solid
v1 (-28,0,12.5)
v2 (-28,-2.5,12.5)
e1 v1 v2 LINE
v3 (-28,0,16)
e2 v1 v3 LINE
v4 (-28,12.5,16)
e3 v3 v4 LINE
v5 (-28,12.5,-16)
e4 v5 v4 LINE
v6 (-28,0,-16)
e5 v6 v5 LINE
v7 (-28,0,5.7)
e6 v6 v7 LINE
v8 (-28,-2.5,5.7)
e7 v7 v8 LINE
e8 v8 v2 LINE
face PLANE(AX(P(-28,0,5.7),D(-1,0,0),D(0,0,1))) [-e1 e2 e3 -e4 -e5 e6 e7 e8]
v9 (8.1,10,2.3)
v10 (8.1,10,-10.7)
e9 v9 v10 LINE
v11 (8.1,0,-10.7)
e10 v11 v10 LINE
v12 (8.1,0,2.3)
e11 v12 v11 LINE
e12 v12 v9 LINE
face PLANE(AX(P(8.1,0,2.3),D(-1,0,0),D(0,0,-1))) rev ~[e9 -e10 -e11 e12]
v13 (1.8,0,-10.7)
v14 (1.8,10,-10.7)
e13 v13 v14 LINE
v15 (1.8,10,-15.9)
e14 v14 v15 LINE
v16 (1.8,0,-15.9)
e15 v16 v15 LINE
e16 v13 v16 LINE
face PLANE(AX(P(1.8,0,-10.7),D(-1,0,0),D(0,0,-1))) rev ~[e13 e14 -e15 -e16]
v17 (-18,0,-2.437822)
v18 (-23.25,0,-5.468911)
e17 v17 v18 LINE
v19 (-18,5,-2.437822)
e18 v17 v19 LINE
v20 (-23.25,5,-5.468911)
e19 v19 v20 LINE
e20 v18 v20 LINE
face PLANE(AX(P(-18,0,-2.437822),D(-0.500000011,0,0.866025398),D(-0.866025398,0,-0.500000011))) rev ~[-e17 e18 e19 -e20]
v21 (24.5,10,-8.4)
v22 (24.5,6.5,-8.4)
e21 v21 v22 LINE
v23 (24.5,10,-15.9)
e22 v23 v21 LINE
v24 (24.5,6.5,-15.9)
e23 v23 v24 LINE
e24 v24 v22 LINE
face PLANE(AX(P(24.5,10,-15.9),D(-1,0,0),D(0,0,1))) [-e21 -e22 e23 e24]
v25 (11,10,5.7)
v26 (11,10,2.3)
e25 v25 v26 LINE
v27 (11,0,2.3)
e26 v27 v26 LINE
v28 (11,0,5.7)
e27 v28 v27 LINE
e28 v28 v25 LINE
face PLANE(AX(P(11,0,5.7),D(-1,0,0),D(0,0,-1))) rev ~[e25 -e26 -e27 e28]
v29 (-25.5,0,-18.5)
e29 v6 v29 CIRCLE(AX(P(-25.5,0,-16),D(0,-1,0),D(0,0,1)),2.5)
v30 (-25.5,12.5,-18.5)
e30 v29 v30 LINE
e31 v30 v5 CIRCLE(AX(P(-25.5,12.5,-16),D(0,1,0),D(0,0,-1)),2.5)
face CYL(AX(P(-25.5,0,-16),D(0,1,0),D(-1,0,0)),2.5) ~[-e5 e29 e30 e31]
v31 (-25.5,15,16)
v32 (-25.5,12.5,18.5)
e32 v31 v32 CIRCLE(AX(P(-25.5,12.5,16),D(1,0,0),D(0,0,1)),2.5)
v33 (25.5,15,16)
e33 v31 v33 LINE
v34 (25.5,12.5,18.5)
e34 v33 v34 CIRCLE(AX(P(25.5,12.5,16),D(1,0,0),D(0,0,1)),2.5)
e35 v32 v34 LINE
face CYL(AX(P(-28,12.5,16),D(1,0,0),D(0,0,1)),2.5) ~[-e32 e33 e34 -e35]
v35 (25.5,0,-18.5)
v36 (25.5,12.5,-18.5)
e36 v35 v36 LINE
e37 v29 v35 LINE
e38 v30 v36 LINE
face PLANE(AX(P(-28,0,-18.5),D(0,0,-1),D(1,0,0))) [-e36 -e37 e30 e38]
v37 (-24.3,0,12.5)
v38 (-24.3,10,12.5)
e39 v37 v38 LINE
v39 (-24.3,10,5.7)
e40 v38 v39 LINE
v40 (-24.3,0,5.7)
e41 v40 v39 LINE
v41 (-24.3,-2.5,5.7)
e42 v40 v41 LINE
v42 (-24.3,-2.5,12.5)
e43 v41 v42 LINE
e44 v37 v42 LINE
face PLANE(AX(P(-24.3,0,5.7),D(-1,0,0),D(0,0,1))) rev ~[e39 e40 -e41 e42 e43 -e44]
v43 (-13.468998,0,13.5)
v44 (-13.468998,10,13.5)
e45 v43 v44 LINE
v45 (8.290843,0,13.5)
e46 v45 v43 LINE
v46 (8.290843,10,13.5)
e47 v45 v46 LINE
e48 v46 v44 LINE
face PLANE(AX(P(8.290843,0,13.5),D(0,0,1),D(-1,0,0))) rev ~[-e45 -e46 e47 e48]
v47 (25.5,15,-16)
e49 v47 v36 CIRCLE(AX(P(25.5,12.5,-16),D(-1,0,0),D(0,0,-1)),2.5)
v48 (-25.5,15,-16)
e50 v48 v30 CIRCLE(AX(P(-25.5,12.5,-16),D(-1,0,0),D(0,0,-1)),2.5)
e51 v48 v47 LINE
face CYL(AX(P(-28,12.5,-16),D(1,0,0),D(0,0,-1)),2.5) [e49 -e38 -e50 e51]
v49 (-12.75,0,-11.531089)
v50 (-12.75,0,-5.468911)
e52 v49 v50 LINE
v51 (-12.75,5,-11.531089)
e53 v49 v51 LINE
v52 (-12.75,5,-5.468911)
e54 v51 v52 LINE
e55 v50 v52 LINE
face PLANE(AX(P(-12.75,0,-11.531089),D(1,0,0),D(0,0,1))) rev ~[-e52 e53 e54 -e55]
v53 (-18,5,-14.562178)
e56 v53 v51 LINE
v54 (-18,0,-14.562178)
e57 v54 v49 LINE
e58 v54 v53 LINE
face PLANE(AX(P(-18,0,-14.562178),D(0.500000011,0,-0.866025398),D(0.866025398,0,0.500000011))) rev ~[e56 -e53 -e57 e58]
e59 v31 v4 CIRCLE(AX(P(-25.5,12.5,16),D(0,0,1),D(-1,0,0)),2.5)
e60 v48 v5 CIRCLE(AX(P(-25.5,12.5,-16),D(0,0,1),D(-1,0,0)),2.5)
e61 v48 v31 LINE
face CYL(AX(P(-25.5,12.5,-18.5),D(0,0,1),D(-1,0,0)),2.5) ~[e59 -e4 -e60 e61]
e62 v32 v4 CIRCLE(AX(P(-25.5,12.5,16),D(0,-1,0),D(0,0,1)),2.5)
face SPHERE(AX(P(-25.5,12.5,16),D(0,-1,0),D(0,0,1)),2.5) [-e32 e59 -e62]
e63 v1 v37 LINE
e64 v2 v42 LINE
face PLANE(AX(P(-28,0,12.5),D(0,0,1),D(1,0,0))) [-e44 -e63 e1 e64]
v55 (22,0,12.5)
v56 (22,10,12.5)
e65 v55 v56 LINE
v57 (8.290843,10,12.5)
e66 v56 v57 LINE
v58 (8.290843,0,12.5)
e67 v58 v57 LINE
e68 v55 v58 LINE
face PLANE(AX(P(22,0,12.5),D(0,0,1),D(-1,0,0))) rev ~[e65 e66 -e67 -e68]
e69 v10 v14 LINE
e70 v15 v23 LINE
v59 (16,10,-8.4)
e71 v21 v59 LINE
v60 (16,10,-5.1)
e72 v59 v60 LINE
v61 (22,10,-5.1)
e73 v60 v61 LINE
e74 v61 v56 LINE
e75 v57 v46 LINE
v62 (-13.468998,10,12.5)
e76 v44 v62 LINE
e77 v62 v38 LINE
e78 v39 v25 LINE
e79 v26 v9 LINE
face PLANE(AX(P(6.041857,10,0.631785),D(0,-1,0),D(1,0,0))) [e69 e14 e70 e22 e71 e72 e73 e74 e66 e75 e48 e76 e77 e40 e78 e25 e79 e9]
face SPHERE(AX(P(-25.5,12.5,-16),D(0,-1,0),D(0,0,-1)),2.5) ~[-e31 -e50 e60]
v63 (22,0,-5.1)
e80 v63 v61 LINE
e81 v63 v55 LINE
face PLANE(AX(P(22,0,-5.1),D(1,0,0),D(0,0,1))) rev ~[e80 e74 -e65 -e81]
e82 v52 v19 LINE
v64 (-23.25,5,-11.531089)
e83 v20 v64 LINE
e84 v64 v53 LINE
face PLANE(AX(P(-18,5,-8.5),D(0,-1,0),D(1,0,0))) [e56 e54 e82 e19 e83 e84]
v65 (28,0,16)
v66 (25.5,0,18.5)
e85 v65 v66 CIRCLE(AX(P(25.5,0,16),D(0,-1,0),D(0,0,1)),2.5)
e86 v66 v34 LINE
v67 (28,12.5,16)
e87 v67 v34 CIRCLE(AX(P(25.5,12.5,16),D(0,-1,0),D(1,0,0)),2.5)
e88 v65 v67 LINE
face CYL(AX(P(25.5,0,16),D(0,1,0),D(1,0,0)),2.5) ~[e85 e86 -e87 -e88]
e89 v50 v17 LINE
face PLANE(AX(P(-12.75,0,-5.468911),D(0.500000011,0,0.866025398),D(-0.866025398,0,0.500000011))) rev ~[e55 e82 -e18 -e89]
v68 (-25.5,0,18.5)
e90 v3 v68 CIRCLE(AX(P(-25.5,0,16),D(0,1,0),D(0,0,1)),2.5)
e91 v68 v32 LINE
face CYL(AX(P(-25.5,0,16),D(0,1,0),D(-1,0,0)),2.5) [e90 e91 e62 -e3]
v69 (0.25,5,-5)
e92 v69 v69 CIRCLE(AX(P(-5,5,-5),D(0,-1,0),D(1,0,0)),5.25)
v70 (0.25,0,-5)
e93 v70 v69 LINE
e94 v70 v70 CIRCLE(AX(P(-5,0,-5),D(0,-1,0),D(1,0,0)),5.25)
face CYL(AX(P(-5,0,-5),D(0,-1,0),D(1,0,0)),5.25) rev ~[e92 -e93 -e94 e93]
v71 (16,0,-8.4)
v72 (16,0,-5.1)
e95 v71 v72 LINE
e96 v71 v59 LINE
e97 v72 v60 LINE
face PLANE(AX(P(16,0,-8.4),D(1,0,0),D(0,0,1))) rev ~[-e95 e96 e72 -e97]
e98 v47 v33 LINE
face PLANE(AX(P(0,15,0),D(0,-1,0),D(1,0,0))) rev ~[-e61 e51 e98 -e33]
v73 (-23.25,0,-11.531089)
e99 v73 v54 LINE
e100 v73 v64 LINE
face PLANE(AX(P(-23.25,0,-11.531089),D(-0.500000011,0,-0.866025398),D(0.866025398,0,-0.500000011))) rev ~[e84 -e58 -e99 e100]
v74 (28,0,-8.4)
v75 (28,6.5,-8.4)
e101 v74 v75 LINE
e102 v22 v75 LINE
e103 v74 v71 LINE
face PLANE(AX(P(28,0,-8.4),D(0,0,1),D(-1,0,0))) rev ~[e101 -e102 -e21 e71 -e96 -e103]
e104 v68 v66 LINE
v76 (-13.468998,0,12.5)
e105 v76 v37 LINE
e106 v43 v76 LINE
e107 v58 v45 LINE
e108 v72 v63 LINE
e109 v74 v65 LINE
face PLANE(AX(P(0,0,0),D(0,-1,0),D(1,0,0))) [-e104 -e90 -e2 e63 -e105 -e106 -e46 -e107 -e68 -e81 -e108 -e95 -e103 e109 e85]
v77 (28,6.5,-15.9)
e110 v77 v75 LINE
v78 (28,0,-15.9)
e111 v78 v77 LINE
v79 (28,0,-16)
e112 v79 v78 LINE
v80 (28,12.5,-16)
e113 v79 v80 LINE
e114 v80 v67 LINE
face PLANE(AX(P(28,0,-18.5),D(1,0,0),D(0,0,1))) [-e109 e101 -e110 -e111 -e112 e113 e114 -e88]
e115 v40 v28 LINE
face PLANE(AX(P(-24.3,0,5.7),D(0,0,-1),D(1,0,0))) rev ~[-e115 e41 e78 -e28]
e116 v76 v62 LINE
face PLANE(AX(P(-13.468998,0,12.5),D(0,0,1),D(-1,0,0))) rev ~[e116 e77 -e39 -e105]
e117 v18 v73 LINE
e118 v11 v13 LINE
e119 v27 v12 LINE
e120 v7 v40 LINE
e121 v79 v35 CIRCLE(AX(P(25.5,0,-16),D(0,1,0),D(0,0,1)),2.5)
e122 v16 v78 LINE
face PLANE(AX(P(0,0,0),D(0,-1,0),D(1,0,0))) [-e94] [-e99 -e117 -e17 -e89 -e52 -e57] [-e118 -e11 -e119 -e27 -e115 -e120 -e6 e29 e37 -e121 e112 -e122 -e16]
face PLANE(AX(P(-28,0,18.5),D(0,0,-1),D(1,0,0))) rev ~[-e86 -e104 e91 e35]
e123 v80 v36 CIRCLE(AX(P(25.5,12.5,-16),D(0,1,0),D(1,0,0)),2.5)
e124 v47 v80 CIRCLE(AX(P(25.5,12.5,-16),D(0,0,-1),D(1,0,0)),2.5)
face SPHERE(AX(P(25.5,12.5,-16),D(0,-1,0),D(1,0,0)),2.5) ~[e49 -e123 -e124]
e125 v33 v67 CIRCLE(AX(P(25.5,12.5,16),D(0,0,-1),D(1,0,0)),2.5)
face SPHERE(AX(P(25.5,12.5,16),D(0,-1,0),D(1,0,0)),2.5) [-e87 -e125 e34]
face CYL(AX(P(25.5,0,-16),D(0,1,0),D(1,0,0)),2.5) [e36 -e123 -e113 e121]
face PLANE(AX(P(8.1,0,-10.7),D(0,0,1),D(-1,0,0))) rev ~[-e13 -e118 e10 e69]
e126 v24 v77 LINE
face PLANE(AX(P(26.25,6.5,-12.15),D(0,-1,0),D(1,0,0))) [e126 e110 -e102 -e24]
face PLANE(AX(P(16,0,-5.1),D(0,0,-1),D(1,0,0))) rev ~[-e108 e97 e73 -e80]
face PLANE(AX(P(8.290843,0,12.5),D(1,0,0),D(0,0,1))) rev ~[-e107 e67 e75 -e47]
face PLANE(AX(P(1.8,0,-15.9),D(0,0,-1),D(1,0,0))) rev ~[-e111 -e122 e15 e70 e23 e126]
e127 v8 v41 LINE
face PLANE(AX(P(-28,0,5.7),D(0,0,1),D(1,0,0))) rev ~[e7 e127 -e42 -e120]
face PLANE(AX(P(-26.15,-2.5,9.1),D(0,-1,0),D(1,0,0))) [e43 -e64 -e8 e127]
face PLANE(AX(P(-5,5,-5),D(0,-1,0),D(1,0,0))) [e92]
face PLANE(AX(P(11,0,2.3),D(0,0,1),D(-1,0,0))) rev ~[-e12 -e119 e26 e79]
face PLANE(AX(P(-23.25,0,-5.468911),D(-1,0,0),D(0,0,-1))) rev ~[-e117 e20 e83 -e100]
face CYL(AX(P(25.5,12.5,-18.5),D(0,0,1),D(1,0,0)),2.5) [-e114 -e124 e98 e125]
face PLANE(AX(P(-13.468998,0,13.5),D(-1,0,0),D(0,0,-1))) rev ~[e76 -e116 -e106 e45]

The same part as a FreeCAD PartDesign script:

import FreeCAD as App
import Part
import Sketcher
Q = App.Units.Quantity


def edges_at(feature, points):
    """Names of the edges that pass closest to the given points."""
    edges = feature.Shape.Edges
    near = lambda p: min(range(len(edges)), key=lambda i: edges[i].distToShape(Part.Vertex(*p))[0])
    return sorted({f"Edge{near(p) + 1}" for p in points})


def add_polygon(sketch, points):
    """Adds a closed chain of lines whose ends are joined by coincident constraints."""
    first, n = sketch.GeometryCount, len(points)
    for a, b in zip(points, points[1:] + points[:1]):
        sketch.addGeometry(Part.LineSegment(App.Vector(*a, 0), App.Vector(*b, 0)), False)
    for i in range(n):
        sketch.addConstraint(Sketcher.Constraint("Coincident", first + i, 2, first + (i + 1) % n, 1))

doc = App.newDocument("Part")
body = doc.addObject("PartDesign::Body", "Body")

sketch1 = doc.addObject("Sketcher::SketchObject", "Sketch")
body.addObject(sketch1)
sketch1.AttachmentSupport = (doc.XZ_Plane, [""])
sketch1.MapMode = "FlatFace"
add_polygon(sketch1, [(-28, 18.5), (-28, -18.5), (28, -18.5), (28, 18.5)])
sketch1.addConstraint(Sketcher.Constraint("Vertical", 0))
sketch1.addConstraint(Sketcher.Constraint("Horizontal", 1))
sketch1.addConstraint(Sketcher.Constraint("Vertical", 2))
sketch1.addConstraint(Sketcher.Constraint("Horizontal", 3))
sketch1.addConstraint(Sketcher.Constraint("Symmetric", 0, 2, 2, 2, -1, 1))
sketch1.addConstraint(Sketcher.Constraint("DistanceX", 1, 1, 1, 2, Q("56 mm")))
sketch1.addConstraint(Sketcher.Constraint("DistanceY", 0, 2, 0, 1, Q("37 mm")))
pad1 = doc.addObject("PartDesign::Pad", "Pad")
body.addObject(pad1)
pad1.Profile = sketch1
pad1.Length = 15
pad1.Reversed = True

sketch2 = doc.addObject("Sketcher::SketchObject", "Sketch001")
body.addObject(sketch2)
sketch2.AttachmentSupport = (doc.XZ_Plane, [""])
sketch2.MapMode = "FlatFace"
add_polygon(sketch2, [(-13.468998, 12.5), (-24.3, 12.5), (-24.3, 5.7), (11, 5.7), (11, 2.3), (8.1, 2.3), (8.1, -10.7), (1.8, -10.7), (1.8, -15.9), (28, -15.9), (28, -8.4), (16, -8.4), (16, -5.1), (22, -5.1), (22, 12.5), (8.290843, 12.5), (8.290843, 13.5), (-13.468998, 13.5)])
sketch2.addConstraint(Sketcher.Constraint("Horizontal", 0))
sketch2.addConstraint(Sketcher.Constraint("Vertical", 1))
sketch2.addConstraint(Sketcher.Constraint("Horizontal", 2))
sketch2.addConstraint(Sketcher.Constraint("Vertical", 3))
sketch2.addConstraint(Sketcher.Constraint("Horizontal", 4))
sketch2.addConstraint(Sketcher.Constraint("Vertical", 5))
sketch2.addConstraint(Sketcher.Constraint("Horizontal", 6))
sketch2.addConstraint(Sketcher.Constraint("Vertical", 7))
sketch2.addConstraint(Sketcher.Constraint("Horizontal", 8))
sketch2.addConstraint(Sketcher.Constraint("Vertical", 9))
sketch2.addConstraint(Sketcher.Constraint("Horizontal", 10))
sketch2.addConstraint(Sketcher.Constraint("Vertical", 11))
sketch2.addConstraint(Sketcher.Constraint("Horizontal", 12))
sketch2.addConstraint(Sketcher.Constraint("Vertical", 13))
sketch2.addConstraint(Sketcher.Constraint("Horizontal", 14))
sketch2.addConstraint(Sketcher.Constraint("Vertical", 15))
sketch2.addConstraint(Sketcher.Constraint("Horizontal", 16))
sketch2.addConstraint(Sketcher.Constraint("Vertical", 17))
sketch2.addConstraint(Sketcher.Constraint("Horizontal", 0, 2, 13, 2))
sketch2.addConstraint(Sketcher.Constraint("DistanceX", 10, 2, 10, 1, Q("12 mm")))
sketch2.addConstraint(Sketcher.Constraint("DistanceX", 12, 1, 12, 2, Q("6 mm")))
sketch2.addConstraint(Sketcher.Constraint("DistanceY", 5, 2, 5, 1, Q("13 mm")))
sketch2.addConstraint(Sketcher.Constraint("DistanceY", 15, 1, 15, 2, Q("1 mm")))
sketch2.addConstraint(Sketcher.Constraint("DistanceX", 2, 1, 2, 2, Q("35.3 mm")))
sketch2.addConstraint(Sketcher.Constraint("DistanceX", 4, 2, 4, 1, Q("2.9 mm")))
sketch2.addConstraint(Sketcher.Constraint("DistanceX", 6, 2, 6, 1, Q("6.3 mm")))
sketch2.addConstraint(Sketcher.Constraint("DistanceX", 8, 1, 8, 2, Q("26.2 mm")))
sketch2.addConstraint(Sketcher.Constraint("DistanceY", 1, 2, 1, 1, Q("6.8 mm")))
sketch2.addConstraint(Sketcher.Constraint("DistanceY", 3, 2, 3, 1, Q("3.4 mm")))
sketch2.addConstraint(Sketcher.Constraint("DistanceY", 7, 2, 7, 1, Q("5.2 mm")))
sketch2.addConstraint(Sketcher.Constraint("DistanceY", 9, 1, 9, 2, Q("7.5 mm")))
sketch2.addConstraint(Sketcher.Constraint("DistanceY", 11, 1, 11, 2, Q("3.3 mm")))
sketch2.addConstraint(Sketcher.Constraint("DistanceX", -1, 1, 2, 2, Q("11 mm")))
sketch2.addConstraint(Sketcher.Constraint("DistanceY", -1, 1, 0, 2, Q("12.5 mm")))
sketch2.addConstraint(Sketcher.Constraint("DistanceX", 16, 2, 4, 2, Q("21.568998 mm")))
sketch2.addConstraint(Sketcher.Constraint("DistanceX", 16, 2, 16, 1, Q("21.759841 mm")))
pocket1 = doc.addObject("PartDesign::Pocket", "Pocket")
body.addObject(pocket1)
pocket1.Profile = sketch2
pocket1.Length = 10

sketch3 = doc.addObject("Sketcher::SketchObject", "Sketch002")
body.addObject(sketch3)
sketch3.AttachmentSupport = (doc.XZ_Plane, [""])
sketch3.MapMode = "FlatFace"
add_polygon(sketch3, [(-28, 12.5), (-28, 5.7), (-24.3, 5.7), (-24.3, 12.5)])
sketch3.addConstraint(Sketcher.Constraint("Vertical", 0))
sketch3.addConstraint(Sketcher.Constraint("Horizontal", 1))
sketch3.addConstraint(Sketcher.Constraint("Vertical", 2))
sketch3.addConstraint(Sketcher.Constraint("Horizontal", 3))
sketch3.addConstraint(Sketcher.Constraint("DistanceX", 1, 1, 1, 2, Q("3.7 mm")))
sketch3.addConstraint(Sketcher.Constraint("DistanceY", 0, 2, 0, 1, Q("6.8 mm")))
sketch3.addConstraint(Sketcher.Constraint("DistanceX", 0, 2, -1, 1, Q("28 mm")))
sketch3.addConstraint(Sketcher.Constraint("DistanceY", -1, 1, 0, 2, Q("5.7 mm")))
pad2 = doc.addObject("PartDesign::Pad", "Pad001")
body.addObject(pad2)
pad2.Profile = sketch3
pad2.Length = 2.5

sketch4 = doc.addObject("Sketcher::SketchObject", "Sketch003")
body.addObject(sketch4)
sketch4.AttachmentSupport = (doc.XZ_Plane, [""])
sketch4.MapMode = "FlatFace"
add_polygon(sketch4, [(-23.25, -5.468911), (-23.25, -11.531089), (-18, -14.562178), (-12.75, -11.531089), (-12.75, -5.468911), (-18, -2.437822)])
sketch4.addConstraint(Sketcher.Constraint("Vertical", 0))
sketch4.addConstraint(Sketcher.Constraint("Vertical", 3))
sketch4.addConstraint(Sketcher.Constraint("Parallel", 1, 4))
sketch4.addConstraint(Sketcher.Constraint("Parallel", 2, 5))
sketch4.addConstraint(Sketcher.Constraint("Horizontal", 0, 2, 2, 2))
sketch4.addConstraint(Sketcher.Constraint("Horizontal", 3, 2, 5, 2))
sketch4.addConstraint(Sketcher.Constraint("Vertical", 1, 2, 4, 2))
sketch4.addConstraint(Sketcher.Constraint("Angle", 1, Q("-30.000001 deg")))
sketch4.addConstraint(Sketcher.Constraint("DistanceX", 1, 2, -1, 1, Q("18 mm")))
sketch4.addConstraint(Sketcher.Constraint("DistanceX", 0, 2, 2, 2, Q("10.5 mm")))
sketch4.addConstraint(Sketcher.Constraint("DistanceY", 0, 2, 0, 1, Q("6.062178 mm")))
sketch4.addConstraint(Sketcher.Constraint("DistanceY", 0, 2, -1, 1, Q("11.531089 mm")))
pocket2 = doc.addObject("PartDesign::Pocket", "Pocket001")
body.addObject(pocket2)
pocket2.Profile = sketch4
pocket2.Length = 5

sketch5 = doc.addObject("Sketcher::SketchObject", "Sketch004")
body.addObject(sketch5)
sketch5.AttachmentSupport = (doc.XZ_Plane, [""])
sketch5.MapMode = "FlatFace"
sketch5.AttachmentOffset = App.Placement(App.Vector(0, 0, -10), App.Rotation())
add_polygon(sketch5, [(24.5, -8.4), (24.5, -15.9), (28, -15.9), (28, -8.4)])
sketch5.addConstraint(Sketcher.Constraint("Vertical", 0))
sketch5.addConstraint(Sketcher.Constraint("Horizontal", 1))
sketch5.addConstraint(Sketcher.Constraint("Vertical", 2))
sketch5.addConstraint(Sketcher.Constraint("Horizontal", 3))
sketch5.addConstraint(Sketcher.Constraint("DistanceX", 1, 1, 1, 2, Q("3.5 mm")))
sketch5.addConstraint(Sketcher.Constraint("DistanceY", 0, 2, 0, 1, Q("7.5 mm")))
sketch5.addConstraint(Sketcher.Constraint("DistanceX", -1, 1, 1, 2, Q("28 mm")))
sketch5.addConstraint(Sketcher.Constraint("DistanceY", 0, 2, -1, 1, Q("15.9 mm")))
pad3 = doc.addObject("PartDesign::Pad", "Pad002")
body.addObject(pad3)
pad3.Profile = sketch5
pad3.Length = 3.5
doc.recompute()

fillet = doc.addObject("PartDesign::Fillet", "Fillet")
body.addObject(fillet)
fillet.Base = (pad3, edges_at(pad3, [
    (28, 7.5, -18.5),
    (28, 7.5, 18.5),
    (-28, 7.5, 18.5),
    (-28, 7.5, -18.5),
    (28, 15, 0),
    (0, 15, 18.5),
    (0, 15, -18.5),
    (-28, 15, 0),
]))
fillet.Radius = 2.5

sketch6 = doc.addObject("Sketcher::SketchObject", "Sketch005")
body.addObject(sketch6)
sketch6.AttachmentSupport = (doc.XZ_Plane, [""])
sketch6.MapMode = "FlatFace"
sketch6.addGeometry(Part.Circle(App.Vector(-5, -5, 0), App.Vector(0, 0, 1), 5.25), False)
sketch6.addConstraint(Sketcher.Constraint("Diameter", 0, Q("10.5 mm")))
sketch6.addConstraint(Sketcher.Constraint("DistanceX", 0, 3, -1, 1, Q("5 mm")))
sketch6.addConstraint(Sketcher.Constraint("DistanceY", 0, 3, -1, 1, Q("5 mm")))
pocket3 = doc.addObject("PartDesign::Pocket", "Pocket002")
body.addObject(pocket3)
pocket3.Profile = sketch6
pocket3.Length = 5

doc.recompute()
